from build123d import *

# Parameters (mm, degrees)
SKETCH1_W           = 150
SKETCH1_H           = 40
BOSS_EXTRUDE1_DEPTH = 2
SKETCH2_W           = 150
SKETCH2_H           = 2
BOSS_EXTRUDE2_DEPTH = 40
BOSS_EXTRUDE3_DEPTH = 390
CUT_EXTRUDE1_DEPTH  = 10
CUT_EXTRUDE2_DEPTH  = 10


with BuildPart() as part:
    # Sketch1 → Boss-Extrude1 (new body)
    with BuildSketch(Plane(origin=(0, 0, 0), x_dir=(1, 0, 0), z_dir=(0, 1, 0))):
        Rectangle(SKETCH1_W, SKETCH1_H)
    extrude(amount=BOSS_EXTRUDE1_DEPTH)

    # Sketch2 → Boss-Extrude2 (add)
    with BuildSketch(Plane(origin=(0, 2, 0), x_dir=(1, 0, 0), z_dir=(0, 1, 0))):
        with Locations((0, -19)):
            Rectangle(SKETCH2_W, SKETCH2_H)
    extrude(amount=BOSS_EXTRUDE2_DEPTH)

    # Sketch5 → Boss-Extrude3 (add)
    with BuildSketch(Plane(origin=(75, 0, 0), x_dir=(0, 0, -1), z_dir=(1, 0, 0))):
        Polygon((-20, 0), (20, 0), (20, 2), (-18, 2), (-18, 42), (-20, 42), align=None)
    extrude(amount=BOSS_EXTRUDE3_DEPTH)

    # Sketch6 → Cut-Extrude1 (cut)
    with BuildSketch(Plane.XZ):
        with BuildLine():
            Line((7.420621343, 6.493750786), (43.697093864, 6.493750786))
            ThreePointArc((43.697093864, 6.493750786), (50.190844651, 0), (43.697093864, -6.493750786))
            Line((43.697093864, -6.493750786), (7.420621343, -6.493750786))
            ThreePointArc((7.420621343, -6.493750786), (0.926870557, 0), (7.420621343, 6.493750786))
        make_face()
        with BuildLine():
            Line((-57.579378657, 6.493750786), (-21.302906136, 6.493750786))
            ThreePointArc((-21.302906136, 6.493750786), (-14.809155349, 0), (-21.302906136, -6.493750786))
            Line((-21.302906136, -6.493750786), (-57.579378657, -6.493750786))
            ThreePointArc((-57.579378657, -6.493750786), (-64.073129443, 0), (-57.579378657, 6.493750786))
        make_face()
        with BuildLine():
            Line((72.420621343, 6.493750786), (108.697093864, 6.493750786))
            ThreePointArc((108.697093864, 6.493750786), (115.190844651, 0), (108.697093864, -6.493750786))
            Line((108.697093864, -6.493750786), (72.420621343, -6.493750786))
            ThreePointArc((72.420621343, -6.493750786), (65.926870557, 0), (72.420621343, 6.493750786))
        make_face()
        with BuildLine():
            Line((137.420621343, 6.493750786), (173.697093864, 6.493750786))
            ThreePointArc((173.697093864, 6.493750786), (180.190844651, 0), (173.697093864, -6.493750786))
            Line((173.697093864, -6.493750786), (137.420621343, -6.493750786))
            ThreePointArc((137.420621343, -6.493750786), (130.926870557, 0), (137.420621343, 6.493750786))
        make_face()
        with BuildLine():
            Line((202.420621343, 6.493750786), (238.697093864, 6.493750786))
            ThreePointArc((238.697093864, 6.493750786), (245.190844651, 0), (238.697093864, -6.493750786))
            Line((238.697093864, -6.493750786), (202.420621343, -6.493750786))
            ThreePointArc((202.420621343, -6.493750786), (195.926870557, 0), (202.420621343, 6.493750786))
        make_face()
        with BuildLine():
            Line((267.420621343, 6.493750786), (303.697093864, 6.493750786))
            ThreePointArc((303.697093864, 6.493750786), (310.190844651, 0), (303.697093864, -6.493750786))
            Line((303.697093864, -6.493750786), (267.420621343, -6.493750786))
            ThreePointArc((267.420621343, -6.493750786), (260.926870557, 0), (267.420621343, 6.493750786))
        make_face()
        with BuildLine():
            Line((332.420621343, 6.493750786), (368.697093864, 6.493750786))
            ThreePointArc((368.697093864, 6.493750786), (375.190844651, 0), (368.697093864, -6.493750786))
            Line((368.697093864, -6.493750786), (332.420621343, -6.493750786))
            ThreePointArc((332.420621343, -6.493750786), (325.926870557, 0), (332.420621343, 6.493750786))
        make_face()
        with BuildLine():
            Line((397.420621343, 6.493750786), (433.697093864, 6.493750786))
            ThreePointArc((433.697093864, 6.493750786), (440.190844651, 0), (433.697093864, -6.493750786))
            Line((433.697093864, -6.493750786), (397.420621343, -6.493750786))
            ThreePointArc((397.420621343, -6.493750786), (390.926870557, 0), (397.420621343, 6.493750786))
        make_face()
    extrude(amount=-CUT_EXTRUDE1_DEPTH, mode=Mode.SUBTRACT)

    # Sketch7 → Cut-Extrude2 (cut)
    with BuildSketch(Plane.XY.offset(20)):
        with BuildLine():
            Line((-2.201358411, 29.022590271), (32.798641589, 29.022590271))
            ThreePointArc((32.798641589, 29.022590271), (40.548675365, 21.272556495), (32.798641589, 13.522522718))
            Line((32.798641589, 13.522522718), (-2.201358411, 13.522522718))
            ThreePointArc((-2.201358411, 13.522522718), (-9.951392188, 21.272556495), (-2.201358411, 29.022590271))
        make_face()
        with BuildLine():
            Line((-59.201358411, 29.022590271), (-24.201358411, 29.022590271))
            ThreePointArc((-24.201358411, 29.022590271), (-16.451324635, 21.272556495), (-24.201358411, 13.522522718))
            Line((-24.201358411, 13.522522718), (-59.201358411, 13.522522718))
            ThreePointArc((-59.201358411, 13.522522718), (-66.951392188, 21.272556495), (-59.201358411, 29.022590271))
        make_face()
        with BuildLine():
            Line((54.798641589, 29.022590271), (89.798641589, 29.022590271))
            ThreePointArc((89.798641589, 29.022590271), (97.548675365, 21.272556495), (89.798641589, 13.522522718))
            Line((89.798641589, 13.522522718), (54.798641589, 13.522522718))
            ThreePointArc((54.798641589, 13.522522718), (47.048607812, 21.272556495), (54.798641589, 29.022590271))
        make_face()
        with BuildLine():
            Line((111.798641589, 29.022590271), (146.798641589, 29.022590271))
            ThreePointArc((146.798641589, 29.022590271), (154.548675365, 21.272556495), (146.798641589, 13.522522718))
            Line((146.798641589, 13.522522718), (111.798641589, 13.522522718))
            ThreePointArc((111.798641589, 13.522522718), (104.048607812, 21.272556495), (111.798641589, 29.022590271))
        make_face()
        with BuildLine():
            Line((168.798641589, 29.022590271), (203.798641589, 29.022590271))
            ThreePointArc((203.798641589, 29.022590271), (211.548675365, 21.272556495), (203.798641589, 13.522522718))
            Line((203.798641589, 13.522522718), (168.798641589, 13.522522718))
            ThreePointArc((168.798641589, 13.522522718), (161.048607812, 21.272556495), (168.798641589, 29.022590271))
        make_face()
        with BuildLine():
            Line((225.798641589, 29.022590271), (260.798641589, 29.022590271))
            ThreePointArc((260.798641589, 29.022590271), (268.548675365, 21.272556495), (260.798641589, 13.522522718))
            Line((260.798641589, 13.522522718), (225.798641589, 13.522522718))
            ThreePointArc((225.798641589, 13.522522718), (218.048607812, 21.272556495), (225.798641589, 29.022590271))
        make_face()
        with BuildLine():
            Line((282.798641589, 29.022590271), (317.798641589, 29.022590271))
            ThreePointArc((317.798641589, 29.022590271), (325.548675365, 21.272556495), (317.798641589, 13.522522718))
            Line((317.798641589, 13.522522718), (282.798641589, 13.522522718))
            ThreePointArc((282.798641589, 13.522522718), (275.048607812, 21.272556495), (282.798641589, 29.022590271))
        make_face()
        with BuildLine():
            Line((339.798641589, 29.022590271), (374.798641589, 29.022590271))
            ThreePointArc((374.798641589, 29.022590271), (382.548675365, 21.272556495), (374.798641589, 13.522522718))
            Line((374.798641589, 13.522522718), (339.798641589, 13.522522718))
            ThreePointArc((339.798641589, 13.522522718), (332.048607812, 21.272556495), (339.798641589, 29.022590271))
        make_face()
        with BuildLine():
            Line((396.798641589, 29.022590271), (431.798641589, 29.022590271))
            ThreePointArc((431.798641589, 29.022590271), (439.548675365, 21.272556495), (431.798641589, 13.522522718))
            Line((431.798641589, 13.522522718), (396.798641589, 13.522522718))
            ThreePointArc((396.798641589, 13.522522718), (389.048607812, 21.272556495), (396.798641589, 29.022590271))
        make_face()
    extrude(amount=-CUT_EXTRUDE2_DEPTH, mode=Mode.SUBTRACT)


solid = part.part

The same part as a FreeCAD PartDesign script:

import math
import FreeCAD as App
import Part
import Sketcher
from FreeCAD import Vector

doc = App.newDocument("Part")
body = doc.addObject("PartDesign::Body", "Body")

sketch1 = body.newObject("Sketcher::SketchObject", "Sketch")
sketch1.AttachmentSupport = (doc.getObject("XZ_Plane"), [""])
sketch1.MapMode = "FlatFace"
sketch1.addGeometry([
    Part.LineSegment(Vector(-75, -20, 0), Vector(-75, 20, 0)),
    Part.LineSegment(Vector(-75, 20, 0), Vector(75, 20, 0)),
    Part.LineSegment(Vector(75, 20, 0), Vector(75, -20, 0)),
    Part.LineSegment(Vector(75, -20, 0), Vector(-75, -20, 0)),
], False)
sketch1.addConstraint([
    Sketcher.Constraint("Coincident", 0, 2, 1, 1),
    Sketcher.Constraint("Coincident", 1, 2, 2, 1),
    Sketcher.Constraint("Coincident", 2, 2, 3, 1),
    Sketcher.Constraint("Coincident", 3, 2, 0, 1),
    Sketcher.Constraint("Vertical", 0),
    Sketcher.Constraint("Horizontal", 1),
    Sketcher.Constraint("Vertical", 2),
    Sketcher.Constraint("Horizontal", 3),
    Sketcher.Constraint("Symmetric", 0, 2, 2, 2, -1, 1),
    Sketcher.Constraint("DistanceX", 1, 1, 1, 2, 150.0),
    Sketcher.Constraint("DistanceY", 0, 1, 0, 2, 40.0),
])
pad1 = body.newObject("PartDesign::Pad", "Pad")
pad1.Profile = sketch1
pad1.Length = 2
pad1.Reversed = True

sketch2 = body.newObject("Sketcher::SketchObject", "Sketch001")
sketch2.AttachmentSupport = (doc.getObject("XZ_Plane"), [""])
sketch2.MapMode = "FlatFace"
sketch2.AttachmentOffset = App.Placement(Vector(0, 0, -2), App.Rotation())
sketch2.addGeometry([
    Part.LineSegment(Vector(-75, 18, 0), Vector(-75, 20, 0)),
    Part.LineSegment(Vector(-75, 20, 0), Vector(75, 20, 0)),
    Part.LineSegment(Vector(75, 20, 0), Vector(75, 18, 0)),
    Part.LineSegment(Vector(75, 18, 0), Vector(-75, 18, 0)),
], False)
sketch2.addConstraint([
    Sketcher.Constraint("Coincident", 0, 2, 1, 1),
    Sketcher.Constraint("Coincident", 1, 2, 2, 1),
    Sketcher.Constraint("Coincident", 2, 2, 3, 1),
    Sketcher.Constraint("Coincident", 3, 2, 0, 1),
    Sketcher.Constraint("Vertical", 0),
    Sketcher.Constraint("Horizontal", 1),
    Sketcher.Constraint("Vertical", 2),
    Sketcher.Constraint("Horizontal", 3),
    Sketcher.Constraint("DistanceX", 1, 1, 1, 2, 150.0),
    Sketcher.Constraint("DistanceY", 0, 1, 0, 2, 2.0),
    Sketcher.Constraint("DistanceX", 0, 2, -1, 1, 75.0),
    Sketcher.Constraint("DistanceY", -1, 1, 0, 2, 20.0),
])
pad2 = body.newObject("PartDesign::Pad", "Pad001")
pad2.Profile = sketch2
pad2.Length = 40
pad2.Reversed = True

sketch3 = body.newObject("Sketcher::SketchObject", "Sketch002")
sketch3.AttachmentSupport = (doc.getObject("YZ_Plane"), [""])
sketch3.MapMode = "FlatFace"
sketch3.AttachmentOffset = App.Placement(Vector(0, 0, 75), App.Rotation())
sketch3.addGeometry([
    Part.LineSegment(Vector(0, 20, 0), Vector(0, -20, 0)),
    Part.LineSegment(Vector(0, -20, 0), Vector(2, -20, 0)),
    Part.LineSegment(Vector(2, -20, 0), Vector(2, 18, 0)),
    Part.LineSegment(Vector(2, 18, 0), Vector(42, 18, 0)),
    Part.LineSegment(Vector(42, 18, 0), Vector(42, 20, 0)),
    Part.LineSegment(Vector(42, 20, 0), Vector(0, 20, 0)),
], False)
sketch3.addConstraint([
    Sketcher.Constraint("Coincident", 0, 2, 1, 1),
    Sketcher.Constraint("Coincident", 1, 2, 2, 1),
    Sketcher.Constraint("Coincident", 2, 2, 3, 1),
    Sketcher.Constraint("Coincident", 3, 2, 4, 1),
    Sketcher.Constraint("Coincident", 4, 2, 5, 1),
    Sketcher.Constraint("Coincident", 5, 2, 0, 1),
    Sketcher.Constraint("Vertical", 0),
    Sketcher.Constraint("Horizontal", 1),
    Sketcher.Constraint("Vertical", 2),
    Sketcher.Constraint("Horizontal", 3),
    Sketcher.Constraint("Vertical", 4),
    Sketcher.Constraint("Horizontal", 5),
    Sketcher.Constraint("Symmetric", 0, 2, 5, 2, -1, 1),
    Sketcher.Constraint("Equal", 3, 0),
    Sketcher.Constraint("Equal", 1, 4),
    Sketcher.Constraint("DistanceX", 1, 1, 1, 2, 2.0),
    Sketcher.Constraint("DistanceX", 3, 1, 3, 2, 40.0),
])
pad3 = body.newObject("PartDesign::Pad", "Pad002")
pad3.Profile = sketch3
pad3.Length = 390

sketch4 = body.newObject("Sketcher::SketchObject", "Sketch003")
sketch4.AttachmentSupport = (doc.getObject("XZ_Plane"), [""])
sketch4.MapMode = "FlatFace"
sketch4.addGeometry([
    Part.LineSegment(Vector(44, 6, 0), Vector(7, 6, 0)),
    Part.ArcOfCircle(Part.Circle(Vector(7, 0, 0), Vector(0, 0, 1), 6), math.radians(90), math.radians(270)),
    Part.LineSegment(Vector(7, -6, 0), Vector(44, -6, 0)),
    Part.ArcOfCircle(Part.Circle(Vector(44, 0, 0), Vector(0, 0, 1), 6), math.radians(-90), math.radians(90)),
    Part.LineSegment(Vector(-21, 6, 0), Vector(-58, 6, 0)),
    Part.ArcOfCircle(Part.Circle(Vector(-58, 0, 0), Vector(0, 0, 1), 6), math.radians(90), math.radians(270)),
    Part.LineSegment(Vector(-58, -6, 0), Vector(-21, -6, 0)),
    Part.ArcOfCircle(Part.Circle(Vector(-21, 0, 0), Vector(0, 0, 1), 6), math.radians(-90), math.radians(90)),
    Part.LineSegment(Vector(109, 6, 0), Vector(72, 6, 0)),
    Part.ArcOfCircle(Part.Circle(Vector(72, 0, 0), Vector(0, 0, 1), 6), math.radians(90), math.radians(270)),
    Part.LineSegment(Vector(72, -6, 0), Vector(109, -6, 0)),
    Part.ArcOfCircle(Part.Circle(Vector(109, 0, 0), Vector(0, 0, 1), 6), math.radians(-90), math.radians(90)),
    Part.LineSegment(Vector(174, 6, 0), Vector(137, 6, 0)),
    Part.ArcOfCircle(Part.Circle(Vector(137, 0, 0), Vector(0, 0, 1), 6), math.radians(90), math.radians(270)),
    Part.LineSegment(Vector(137, -6, 0), Vector(174, -6, 0)),
    Part.ArcOfCircle(Part.Circle(Vector(174, 0, 0), Vector(0, 0, 1), 6), math.radians(-90), math.radians(90)),
    Part.LineSegment(Vector(239, 6, 0), Vector(202, 6, 0)),
    Part.ArcOfCircle(Part.Circle(Vector(202, 0, 0), Vector(0, 0, 1), 6), math.radians(90), math.radians(270)),
    Part.LineSegment(Vector(202, -6, 0), Vector(239, -6, 0)),
    Part.ArcOfCircle(Part.Circle(Vector(239, 0, 0), Vector(0, 0, 1), 6), math.radians(-90), math.radians(90)),
    Part.LineSegment(Vector(304, 6, 0), Vector(267, 6, 0)),
    Part.ArcOfCircle(Part.Circle(Vector(267, 0, 0), Vector(0, 0, 1), 6), math.radians(90), math.radians(270)),
    Part.LineSegment(Vector(267, -6, 0), Vector(304, -6, 0)),
    Part.ArcOfCircle(Part.Circle(Vector(304, 0, 0), Vector(0, 0, 1), 6), math.radians(-90), math.radians(90)),
    Part.LineSegment(Vector(369, 6, 0), Vector(332, 6, 0)),
    Part.ArcOfCircle(Part.Circle(Vector(332, 0, 0), Vector(0, 0, 1), 6), math.radians(90), math.radians(270)),
    Part.LineSegment(Vector(332, -6, 0), Vector(369, -6, 0)),
    Part.ArcOfCircle(Part.Circle(Vector(369, 0, 0), Vector(0, 0, 1), 6), math.radians(-90), math.radians(90)),
    Part.LineSegment(Vector(434, 6, 0), Vector(397, 6, 0)),
    Part.ArcOfCircle(Part.Circle(Vector(397, 0, 0), Vector(0, 0, 1), 6), math.radians(90), math.radians(270)),
    Part.LineSegment(Vector(397, -6, 0), Vector(434, -6, 0)),
    Part.ArcOfCircle(Part.Circle(Vector(434, 0, 0), Vector(0, 0, 1), 6), math.radians(-90), math.radians(90)),
], False)
sketch4.addConstraint([
    Sketcher.Constraint("Tangent", 0, 2, 1, 1),
    Sketcher.Constraint("Tangent", 1, 2, 2, 1),
    Sketcher.Constraint("Tangent", 2, 2, 3, 1),
    Sketcher.Constraint("Tangent", 3, 2, 0, 1),
    Sketcher.Constraint("Tangent", 4, 2, 5, 1),
    Sketcher.Constraint("Tangent", 5, 2, 6, 1),
    Sketcher.Constraint("Tangent", 6, 2, 7, 1),
    Sketcher.Constraint("Tangent", 7, 2, 4, 1),
    Sketcher.Constraint("Tangent", 8, 2, 9, 1),
    Sketcher.Constraint("Tangent", 9, 2, 10, 1),
    Sketcher.Constraint("Tangent", 10, 2, 11, 1),
    Sketcher.Constraint("Tangent", 11, 2, 8, 1),
    Sketcher.Constraint("Tangent", 12, 2, 13, 1),
    Sketcher.Constraint("Tangent", 13, 2, 14, 1),
    Sketcher.Constraint("Tangent", 14, 2, 15, 1),
    Sketcher.Constraint("Tangent", 15, 2, 12, 1),
    Sketcher.Constraint("Tangent", 16, 2, 17, 1),
    Sketcher.Constraint("Tangent", 17, 2, 18, 1),
    Sketcher.Constraint("Tangent", 18, 2, 19, 1),
    Sketcher.Constraint("Tangent", 19, 2, 16, 1),
    Sketcher.Constraint("Tangent", 20, 2, 21, 1),
    Sketcher.Constraint("Tangent", 21, 2, 22, 1),
    Sketcher.Constraint("Tangent", 22, 2, 23, 1),
    Sketcher.Constraint("Tangent", 23, 2, 20, 1),
    Sketcher.Constraint("Tangent", 24, 2, 25, 1),
    Sketcher.Constraint("Tangent", 25, 2, 26, 1),
    Sketcher.Constraint("Tangent", 26, 2, 27, 1),
    Sketcher.Constraint("Tangent", 27, 2, 24, 1),
    Sketcher.Constraint("Tangent", 28, 2, 29, 1),
    Sketcher.Constraint("Tangent", 29, 2, 30, 1),
    Sketcher.Constraint("Tangent", 30, 2, 31, 1),
    Sketcher.Constraint("Tangent", 31, 2, 28, 1),
    Sketcher.Constraint("Horizontal", 0),
    Sketcher.Constraint("Horizontal", 2),
    Sketcher.Constraint("Horizontal", 4),
    Sketcher.Constraint("Horizontal", 6),
    Sketcher.Constraint("Horizontal", 8),
    Sketcher.Constraint("Horizontal", 10),
    Sketcher.Constraint("Horizontal", 12),
    Sketcher.Constraint("Horizontal", 14),
    Sketcher.Constraint("Horizontal", 16),
    Sketcher.Constraint("Horizontal", 18),
    Sketcher.Constraint("Horizontal", 20),
    Sketcher.Constraint("Horizontal", 22),
    Sketcher.Constraint("Horizontal", 24),
    Sketcher.Constraint("Horizontal", 26),
    Sketcher.Constraint("Horizontal", 28),
    Sketcher.Constraint("Horizontal", 30),
    Sketcher.Constraint("Equal", 3, 5),
    Sketcher.Constraint("Equal", 7, 9),
    Sketcher.Constraint("Equal", 11, 13),
    Sketcher.Constraint("Equal", 15, 17),
    Sketcher.Constraint("Equal", 19, 21),
    Sketcher.Constraint("Equal", 23, 25),
    Sketcher.Constraint("Equal", 27, 29),
    Sketcher.Constraint("PointOnObject", 1, 3, -1),
    Sketcher.Constraint("PointOnObject", 5, 3, -1),
    Sketcher.Constraint("PointOnObject", 9, 3, -1),
    Sketcher.Constraint("PointOnObject", 13, 3, -1),
    Sketcher.Constraint("PointOnObject", 17, 3, -1),
    Sketcher.Constraint("PointOnObject", 21, 3, -1),
    Sketcher.Constraint("PointOnObject", 25, 3, -1),
    Sketcher.Constraint("PointOnObject", 29, 3, -1),
    Sketcher.Constraint("Equal", 2, 4),
    Sketcher.Constraint("Equal", 6, 8),
    Sketcher.Constraint("Equal", 10, 12),
    Sketcher.Constraint("Equal", 14, 16),
    Sketcher.Constraint("Equal", 18, 20),
    Sketcher.Constraint("Equal", 22, 24),
    Sketcher.Constraint("Equal", 26, 28),
    Sketcher.Constraint("DistanceX", 5, 3, 1, 3, 65.0),
    Sketcher.Constraint("DistanceX", 1, 3, 9, 3, 65.0),
    Sketcher.Constraint("DistanceX", 9, 3, 13, 3, 65.0),
    Sketcher.Constraint("DistanceX", 13, 3, 17, 3, 65.0),
    Sketcher.Constraint("DistanceX", 17, 3, 21, 3, 65.0),
    Sketcher.Constraint("DistanceX", 21, 3, 25, 3, 65.0),
    Sketcher.Constraint("DistanceX", 25, 3, 29, 3, 65.0),
    Sketcher.Constraint("Radius", 1, 6.493751),
    Sketcher.Constraint("DistanceX", 0, 2, 0, 1, 36.276473),
    Sketcher.Constraint("DistanceX", -1, 1, 1, 3, 7.420621),
])
pocket1 = body.newObject("PartDesign::Pocket", "Pocket")
pocket1.Profile = sketch4
pocket1.Length = 10

sketch5 = body.newObject("Sketcher::SketchObject", "Sketch004")
sketch5.AttachmentSupport = (doc.getObject("XY_Plane"), [""])
sketch5.MapMode = "FlatFace"
sketch5.AttachmentOffset = App.Placement(Vector(0, 0, 20), App.Rotation())
sketch5.addGeometry([
    Part.LineSegment(Vector(33, 29, 0), Vector(-2, 29, 0)),
    Part.ArcOfCircle(Part.Circle(Vector(-2, 21, 0), Vector(0, 0, 1), 8), math.radians(90), math.radians(270)),
    Part.LineSegment(Vector(-2, 14, 0), Vector(33, 14, 0)),
    Part.ArcOfCircle(Part.Circle(Vector(33, 21, 0), Vector(0, 0, 1), 8), math.radians(-90), math.radians(90)),
    Part.LineSegment(Vector(-24, 29, 0), Vector(-59, 29, 0)),
    Part.ArcOfCircle(Part.Circle(Vector(-59, 21, 0), Vector(0, 0, 1), 8), math.radians(90), math.radians(270)),
    Part.LineSegment(Vector(-59, 14, 0), Vector(-24, 14, 0)),
    Part.ArcOfCircle(Part.Circle(Vector(-24, 21, 0), Vector(0, 0, 1), 8), math.radians(-90), math.radians(90)),
    Part.LineSegment(Vector(90, 29, 0), Vector(55, 29, 0)),
    Part.ArcOfCircle(Part.Circle(Vector(55, 21, 0), Vector(0, 0, 1), 8), math.radians(90), math.radians(270)),
    Part.LineSegment(Vector(55, 14, 0), Vector(90, 14, 0)),
    Part.ArcOfCircle(Part.Circle(Vector(90, 21, 0), Vector(0, 0, 1), 8), math.radians(-90), math.radians(90)),
    Part.LineSegment(Vector(147, 29, 0), Vector(112, 29, 0)),
    Part.ArcOfCircle(Part.Circle(Vector(112, 21, 0), Vector(0, 0, 1), 8), math.radians(90), math.radians(270)),
    Part.LineSegment(Vector(112, 14, 0), Vector(147, 14, 0)),
    Part.ArcOfCircle(Part.Circle(Vector(147, 21, 0), Vector(0, 0, 1), 8), math.radians(-90), math.radians(90)),
    Part.LineSegment(Vector(204, 29, 0), Vector(169, 29, 0)),
    Part.ArcOfCircle(Part.Circle(Vector(169, 21, 0), Vector(0, 0, 1), 8), math.radians(90), math.radians(270)),
    Part.LineSegment(Vector(169, 14, 0), Vector(204, 14, 0)),
    Part.ArcOfCircle(Part.Circle(Vector(204, 21, 0), Vector(0, 0, 1), 8), math.radians(-90), math.radians(90)),
    Part.LineSegment(Vector(261, 29, 0), Vector(226, 29, 0)),
    Part.ArcOfCircle(Part.Circle(Vector(226, 21, 0), Vector(0, 0, 1), 8), math.radians(90), math.radians(270)),
    Part.LineSegment(Vector(226, 14, 0), Vector(261, 14, 0)),
    Part.ArcOfCircle(Part.Circle(Vector(261, 21, 0), Vector(0, 0, 1), 8), math.radians(-90), math.radians(90)),
    Part.LineSegment(Vector(318, 29, 0), Vector(283, 29, 0)),
    Part.ArcOfCircle(Part.Circle(Vector(283, 21, 0), Vector(0, 0, 1), 8), math.radians(90), math.radians(270)),
    Part.LineSegment(Vector(283, 14, 0), Vector(318, 14, 0)),
    Part.ArcOfCircle(Part.Circle(Vector(318, 21, 0), Vector(0, 0, 1), 8), math.radians(-90), math.radians(90)),
    Part.LineSegment(Vector(375, 29, 0), Vector(340, 29, 0)),
    Part.ArcOfCircle(Part.Circle(Vector(340, 21, 0), Vector(0, 0, 1), 8), math.radians(90), math.radians(270)),
    Part.LineSegment(Vector(340, 14, 0), Vector(375, 14, 0)),
    Part.ArcOfCircle(Part.Circle(Vector(375, 21, 0), Vector(0, 0, 1), 8), math.radians(-90), math.radians(90)),
    Part.LineSegment(Vector(432, 29, 0), Vector(397, 29, 0)),
    Part.ArcOfCircle(Part.Circle(Vector(397, 21, 0), Vector(0, 0, 1), 8), math.radians(90), math.radians(270)),
    Part.LineSegment(Vector(397, 14, 0), Vector(432, 14, 0)),
    Part.ArcOfCircle(Part.Circle(Vector(432, 21, 0), Vector(0, 0, 1), 8), math.radians(-90), math.radians(90)),
], False)
sketch5.addConstraint([
    Sketcher.Constraint("Tangent", 0, 2, 1, 1),
    Sketcher.Constraint("Tangent", 1, 2, 2, 1),
    Sketcher.Constraint("Tangent", 2, 2, 3, 1),
    Sketcher.Constraint("Tangent", 3, 2, 0, 1),
    Sketcher.Constraint("Tangent", 4, 2, 5, 1),
    Sketcher.Constraint("Tangent", 5, 2, 6, 1),
    Sketcher.Constraint("Tangent", 6, 2, 7, 1),
    Sketcher.Constraint("Tangent", 7, 2, 4, 1),
    Sketcher.Constraint("Tangent", 8, 2, 9, 1),
    Sketcher.Constraint("Tangent", 9, 2, 10, 1),
    Sketcher.Constraint("Tangent", 10, 2, 11, 1),
    Sketcher.Constraint("Tangent", 11, 2, 8, 1),
    Sketcher.Constraint("Tangent", 12, 2, 13, 1),
    Sketcher.Constraint("Tangent", 13, 2, 14, 1),
    Sketcher.Constraint("Tangent", 14, 2, 15, 1),
    Sketcher.Constraint("Tangent", 15, 2, 12, 1),
    Sketcher.Constraint("Tangent", 16, 2, 17, 1),
    Sketcher.Constraint("Tangent", 17, 2, 18, 1),
    Sketcher.Constraint("Tangent", 18, 2, 19, 1),
    Sketcher.Constraint("Tangent", 19, 2, 16, 1),
    Sketcher.Constraint("Tangent", 20, 2, 21, 1),
    Sketcher.Constraint("Tangent", 21, 2, 22, 1),
    Sketcher.Constraint("Tangent", 22, 2, 23, 1),
    Sketcher.Constraint("Tangent", 23, 2, 20, 1),
    Sketcher.Constraint("Tangent", 24, 2, 25, 1),
    Sketcher.Constraint("Tangent", 25, 2, 26, 1),
    Sketcher.Constraint("Tangent", 26, 2, 27, 1),
    Sketcher.Constraint("Tangent", 27, 2, 24, 1),
    Sketcher.Constraint("Tangent", 28, 2, 29, 1),
    Sketcher.Constraint("Tangent", 29, 2, 30, 1),
    Sketcher.Constraint("Tangent", 30, 2, 31, 1),
    Sketcher.Constraint("Tangent", 31, 2, 28, 1),
    Sketcher.Constraint("Tangent", 32, 2, 33, 1),
    Sketcher.Constraint("Tangent", 33, 2, 34, 1),
    Sketcher.Constraint("Tangent", 34, 2, 35, 1),
    Sketcher.Constraint("Tangent", 35, 2, 32, 1),
    Sketcher.Constraint("Horizontal", 0),
    Sketcher.Constraint("Horizontal", 2),
    Sketcher.Constraint("Horizontal", 4),
    Sketcher.Constraint("Horizontal", 6),
    Sketcher.Constraint("Horizontal", 8),
    Sketcher.Constraint("Horizontal", 10),
    Sketcher.Constraint("Horizontal", 12),
    Sketcher.Constraint("Horizontal", 14),
    Sketcher.Constraint("Horizontal", 16),
    Sketcher.Constraint("Horizontal", 18),
    Sketcher.Constraint("Horizontal", 20),
    Sketcher.Constraint("Horizontal", 22),
    Sketcher.Constraint("Horizontal", 24),
    Sketcher.Constraint("Horizontal", 26),
    Sketcher.Constraint("Horizontal", 28),
    Sketcher.Constraint("Horizontal", 30),
    Sketcher.Constraint("Horizontal", 32),
    Sketcher.Constraint("Horizontal", 34),
    Sketcher.Constraint("Equal", 3, 5),
    Sketcher.Constraint("Equal", 7, 9),
    Sketcher.Constraint("Equal", 11, 13),
    Sketcher.Constraint("Equal", 15, 17),
    Sketcher.Constraint("Equal", 19, 21),
    Sketcher.Constraint("Equal", 23, 25),
    Sketcher.Constraint("Equal", 27, 29),
    Sketcher.Constraint("Equal", 31, 33),
    Sketcher.Constraint("Horizontal", 3, 3, 5, 3),
    Sketcher.Constraint("Horizontal", 7, 3, 9, 3),
    Sketcher.Constraint("Horizontal", 11, 3, 13, 3),
    Sketcher.Constraint("Horizontal", 15, 3, 17, 3),
    Sketcher.Constraint("Horizontal", 19, 3, 21, 3),
    Sketcher.Constraint("Horizontal", 23, 3, 25, 3),
    Sketcher.Constraint("Horizontal", 27, 3, 29, 3),
    Sketcher.Constraint("Horizontal", 31, 3, 33, 3),
    Sketcher.Constraint("Equal", 2, 4),
    Sketcher.Constraint("Equal", 6, 8),
    Sketcher.Constraint("Equal", 10, 12),
    Sketcher.Constraint("Equal", 14, 16),
    Sketcher.Constraint("Equal", 18, 20),
    Sketcher.Constraint("Equal", 22, 24),
    Sketcher.Constraint("Equal", 26, 28),
    Sketcher.Constraint("Equal", 30, 32),
    Sketcher.Constraint("DistanceX", 0, 2, 0, 1, 35.0),
    Sketcher.Constraint("DistanceX", 5, 3, 1, 3, 57.0),
    Sketcher.Constraint("DistanceX", 3, 3, 9, 3, 22.0),
    Sketcher.Constraint("DistanceX", 11, 3, 13, 3, 22.0),
    Sketcher.Constraint("DistanceX", 15, 3, 17, 3, 22.0),
    Sketcher.Constraint("DistanceX", 19, 3, 21, 3, 22.0),
    Sketcher.Constraint("DistanceX", 23, 3, 25, 3, 22.0),
    Sketcher.Constraint("DistanceX", 27, 3, 29, 3, 22.0),
    Sketcher.Constraint("DistanceX", 31, 3, 33, 3, 22.0),
    Sketcher.Constraint("Radius", 1, 7.750034),
    Sketcher.Constraint("DistanceX", 1, 3, -1, 1, 2.201358),
    Sketcher.Constraint("DistanceY", -1, 1, 0, 2, 29.02259),
])
pocket2 = body.newObject("PartDesign::Pocket", "Pocket001")
pocket2.Profile = sketch5
pocket2.Length = 10

doc.recompute()
